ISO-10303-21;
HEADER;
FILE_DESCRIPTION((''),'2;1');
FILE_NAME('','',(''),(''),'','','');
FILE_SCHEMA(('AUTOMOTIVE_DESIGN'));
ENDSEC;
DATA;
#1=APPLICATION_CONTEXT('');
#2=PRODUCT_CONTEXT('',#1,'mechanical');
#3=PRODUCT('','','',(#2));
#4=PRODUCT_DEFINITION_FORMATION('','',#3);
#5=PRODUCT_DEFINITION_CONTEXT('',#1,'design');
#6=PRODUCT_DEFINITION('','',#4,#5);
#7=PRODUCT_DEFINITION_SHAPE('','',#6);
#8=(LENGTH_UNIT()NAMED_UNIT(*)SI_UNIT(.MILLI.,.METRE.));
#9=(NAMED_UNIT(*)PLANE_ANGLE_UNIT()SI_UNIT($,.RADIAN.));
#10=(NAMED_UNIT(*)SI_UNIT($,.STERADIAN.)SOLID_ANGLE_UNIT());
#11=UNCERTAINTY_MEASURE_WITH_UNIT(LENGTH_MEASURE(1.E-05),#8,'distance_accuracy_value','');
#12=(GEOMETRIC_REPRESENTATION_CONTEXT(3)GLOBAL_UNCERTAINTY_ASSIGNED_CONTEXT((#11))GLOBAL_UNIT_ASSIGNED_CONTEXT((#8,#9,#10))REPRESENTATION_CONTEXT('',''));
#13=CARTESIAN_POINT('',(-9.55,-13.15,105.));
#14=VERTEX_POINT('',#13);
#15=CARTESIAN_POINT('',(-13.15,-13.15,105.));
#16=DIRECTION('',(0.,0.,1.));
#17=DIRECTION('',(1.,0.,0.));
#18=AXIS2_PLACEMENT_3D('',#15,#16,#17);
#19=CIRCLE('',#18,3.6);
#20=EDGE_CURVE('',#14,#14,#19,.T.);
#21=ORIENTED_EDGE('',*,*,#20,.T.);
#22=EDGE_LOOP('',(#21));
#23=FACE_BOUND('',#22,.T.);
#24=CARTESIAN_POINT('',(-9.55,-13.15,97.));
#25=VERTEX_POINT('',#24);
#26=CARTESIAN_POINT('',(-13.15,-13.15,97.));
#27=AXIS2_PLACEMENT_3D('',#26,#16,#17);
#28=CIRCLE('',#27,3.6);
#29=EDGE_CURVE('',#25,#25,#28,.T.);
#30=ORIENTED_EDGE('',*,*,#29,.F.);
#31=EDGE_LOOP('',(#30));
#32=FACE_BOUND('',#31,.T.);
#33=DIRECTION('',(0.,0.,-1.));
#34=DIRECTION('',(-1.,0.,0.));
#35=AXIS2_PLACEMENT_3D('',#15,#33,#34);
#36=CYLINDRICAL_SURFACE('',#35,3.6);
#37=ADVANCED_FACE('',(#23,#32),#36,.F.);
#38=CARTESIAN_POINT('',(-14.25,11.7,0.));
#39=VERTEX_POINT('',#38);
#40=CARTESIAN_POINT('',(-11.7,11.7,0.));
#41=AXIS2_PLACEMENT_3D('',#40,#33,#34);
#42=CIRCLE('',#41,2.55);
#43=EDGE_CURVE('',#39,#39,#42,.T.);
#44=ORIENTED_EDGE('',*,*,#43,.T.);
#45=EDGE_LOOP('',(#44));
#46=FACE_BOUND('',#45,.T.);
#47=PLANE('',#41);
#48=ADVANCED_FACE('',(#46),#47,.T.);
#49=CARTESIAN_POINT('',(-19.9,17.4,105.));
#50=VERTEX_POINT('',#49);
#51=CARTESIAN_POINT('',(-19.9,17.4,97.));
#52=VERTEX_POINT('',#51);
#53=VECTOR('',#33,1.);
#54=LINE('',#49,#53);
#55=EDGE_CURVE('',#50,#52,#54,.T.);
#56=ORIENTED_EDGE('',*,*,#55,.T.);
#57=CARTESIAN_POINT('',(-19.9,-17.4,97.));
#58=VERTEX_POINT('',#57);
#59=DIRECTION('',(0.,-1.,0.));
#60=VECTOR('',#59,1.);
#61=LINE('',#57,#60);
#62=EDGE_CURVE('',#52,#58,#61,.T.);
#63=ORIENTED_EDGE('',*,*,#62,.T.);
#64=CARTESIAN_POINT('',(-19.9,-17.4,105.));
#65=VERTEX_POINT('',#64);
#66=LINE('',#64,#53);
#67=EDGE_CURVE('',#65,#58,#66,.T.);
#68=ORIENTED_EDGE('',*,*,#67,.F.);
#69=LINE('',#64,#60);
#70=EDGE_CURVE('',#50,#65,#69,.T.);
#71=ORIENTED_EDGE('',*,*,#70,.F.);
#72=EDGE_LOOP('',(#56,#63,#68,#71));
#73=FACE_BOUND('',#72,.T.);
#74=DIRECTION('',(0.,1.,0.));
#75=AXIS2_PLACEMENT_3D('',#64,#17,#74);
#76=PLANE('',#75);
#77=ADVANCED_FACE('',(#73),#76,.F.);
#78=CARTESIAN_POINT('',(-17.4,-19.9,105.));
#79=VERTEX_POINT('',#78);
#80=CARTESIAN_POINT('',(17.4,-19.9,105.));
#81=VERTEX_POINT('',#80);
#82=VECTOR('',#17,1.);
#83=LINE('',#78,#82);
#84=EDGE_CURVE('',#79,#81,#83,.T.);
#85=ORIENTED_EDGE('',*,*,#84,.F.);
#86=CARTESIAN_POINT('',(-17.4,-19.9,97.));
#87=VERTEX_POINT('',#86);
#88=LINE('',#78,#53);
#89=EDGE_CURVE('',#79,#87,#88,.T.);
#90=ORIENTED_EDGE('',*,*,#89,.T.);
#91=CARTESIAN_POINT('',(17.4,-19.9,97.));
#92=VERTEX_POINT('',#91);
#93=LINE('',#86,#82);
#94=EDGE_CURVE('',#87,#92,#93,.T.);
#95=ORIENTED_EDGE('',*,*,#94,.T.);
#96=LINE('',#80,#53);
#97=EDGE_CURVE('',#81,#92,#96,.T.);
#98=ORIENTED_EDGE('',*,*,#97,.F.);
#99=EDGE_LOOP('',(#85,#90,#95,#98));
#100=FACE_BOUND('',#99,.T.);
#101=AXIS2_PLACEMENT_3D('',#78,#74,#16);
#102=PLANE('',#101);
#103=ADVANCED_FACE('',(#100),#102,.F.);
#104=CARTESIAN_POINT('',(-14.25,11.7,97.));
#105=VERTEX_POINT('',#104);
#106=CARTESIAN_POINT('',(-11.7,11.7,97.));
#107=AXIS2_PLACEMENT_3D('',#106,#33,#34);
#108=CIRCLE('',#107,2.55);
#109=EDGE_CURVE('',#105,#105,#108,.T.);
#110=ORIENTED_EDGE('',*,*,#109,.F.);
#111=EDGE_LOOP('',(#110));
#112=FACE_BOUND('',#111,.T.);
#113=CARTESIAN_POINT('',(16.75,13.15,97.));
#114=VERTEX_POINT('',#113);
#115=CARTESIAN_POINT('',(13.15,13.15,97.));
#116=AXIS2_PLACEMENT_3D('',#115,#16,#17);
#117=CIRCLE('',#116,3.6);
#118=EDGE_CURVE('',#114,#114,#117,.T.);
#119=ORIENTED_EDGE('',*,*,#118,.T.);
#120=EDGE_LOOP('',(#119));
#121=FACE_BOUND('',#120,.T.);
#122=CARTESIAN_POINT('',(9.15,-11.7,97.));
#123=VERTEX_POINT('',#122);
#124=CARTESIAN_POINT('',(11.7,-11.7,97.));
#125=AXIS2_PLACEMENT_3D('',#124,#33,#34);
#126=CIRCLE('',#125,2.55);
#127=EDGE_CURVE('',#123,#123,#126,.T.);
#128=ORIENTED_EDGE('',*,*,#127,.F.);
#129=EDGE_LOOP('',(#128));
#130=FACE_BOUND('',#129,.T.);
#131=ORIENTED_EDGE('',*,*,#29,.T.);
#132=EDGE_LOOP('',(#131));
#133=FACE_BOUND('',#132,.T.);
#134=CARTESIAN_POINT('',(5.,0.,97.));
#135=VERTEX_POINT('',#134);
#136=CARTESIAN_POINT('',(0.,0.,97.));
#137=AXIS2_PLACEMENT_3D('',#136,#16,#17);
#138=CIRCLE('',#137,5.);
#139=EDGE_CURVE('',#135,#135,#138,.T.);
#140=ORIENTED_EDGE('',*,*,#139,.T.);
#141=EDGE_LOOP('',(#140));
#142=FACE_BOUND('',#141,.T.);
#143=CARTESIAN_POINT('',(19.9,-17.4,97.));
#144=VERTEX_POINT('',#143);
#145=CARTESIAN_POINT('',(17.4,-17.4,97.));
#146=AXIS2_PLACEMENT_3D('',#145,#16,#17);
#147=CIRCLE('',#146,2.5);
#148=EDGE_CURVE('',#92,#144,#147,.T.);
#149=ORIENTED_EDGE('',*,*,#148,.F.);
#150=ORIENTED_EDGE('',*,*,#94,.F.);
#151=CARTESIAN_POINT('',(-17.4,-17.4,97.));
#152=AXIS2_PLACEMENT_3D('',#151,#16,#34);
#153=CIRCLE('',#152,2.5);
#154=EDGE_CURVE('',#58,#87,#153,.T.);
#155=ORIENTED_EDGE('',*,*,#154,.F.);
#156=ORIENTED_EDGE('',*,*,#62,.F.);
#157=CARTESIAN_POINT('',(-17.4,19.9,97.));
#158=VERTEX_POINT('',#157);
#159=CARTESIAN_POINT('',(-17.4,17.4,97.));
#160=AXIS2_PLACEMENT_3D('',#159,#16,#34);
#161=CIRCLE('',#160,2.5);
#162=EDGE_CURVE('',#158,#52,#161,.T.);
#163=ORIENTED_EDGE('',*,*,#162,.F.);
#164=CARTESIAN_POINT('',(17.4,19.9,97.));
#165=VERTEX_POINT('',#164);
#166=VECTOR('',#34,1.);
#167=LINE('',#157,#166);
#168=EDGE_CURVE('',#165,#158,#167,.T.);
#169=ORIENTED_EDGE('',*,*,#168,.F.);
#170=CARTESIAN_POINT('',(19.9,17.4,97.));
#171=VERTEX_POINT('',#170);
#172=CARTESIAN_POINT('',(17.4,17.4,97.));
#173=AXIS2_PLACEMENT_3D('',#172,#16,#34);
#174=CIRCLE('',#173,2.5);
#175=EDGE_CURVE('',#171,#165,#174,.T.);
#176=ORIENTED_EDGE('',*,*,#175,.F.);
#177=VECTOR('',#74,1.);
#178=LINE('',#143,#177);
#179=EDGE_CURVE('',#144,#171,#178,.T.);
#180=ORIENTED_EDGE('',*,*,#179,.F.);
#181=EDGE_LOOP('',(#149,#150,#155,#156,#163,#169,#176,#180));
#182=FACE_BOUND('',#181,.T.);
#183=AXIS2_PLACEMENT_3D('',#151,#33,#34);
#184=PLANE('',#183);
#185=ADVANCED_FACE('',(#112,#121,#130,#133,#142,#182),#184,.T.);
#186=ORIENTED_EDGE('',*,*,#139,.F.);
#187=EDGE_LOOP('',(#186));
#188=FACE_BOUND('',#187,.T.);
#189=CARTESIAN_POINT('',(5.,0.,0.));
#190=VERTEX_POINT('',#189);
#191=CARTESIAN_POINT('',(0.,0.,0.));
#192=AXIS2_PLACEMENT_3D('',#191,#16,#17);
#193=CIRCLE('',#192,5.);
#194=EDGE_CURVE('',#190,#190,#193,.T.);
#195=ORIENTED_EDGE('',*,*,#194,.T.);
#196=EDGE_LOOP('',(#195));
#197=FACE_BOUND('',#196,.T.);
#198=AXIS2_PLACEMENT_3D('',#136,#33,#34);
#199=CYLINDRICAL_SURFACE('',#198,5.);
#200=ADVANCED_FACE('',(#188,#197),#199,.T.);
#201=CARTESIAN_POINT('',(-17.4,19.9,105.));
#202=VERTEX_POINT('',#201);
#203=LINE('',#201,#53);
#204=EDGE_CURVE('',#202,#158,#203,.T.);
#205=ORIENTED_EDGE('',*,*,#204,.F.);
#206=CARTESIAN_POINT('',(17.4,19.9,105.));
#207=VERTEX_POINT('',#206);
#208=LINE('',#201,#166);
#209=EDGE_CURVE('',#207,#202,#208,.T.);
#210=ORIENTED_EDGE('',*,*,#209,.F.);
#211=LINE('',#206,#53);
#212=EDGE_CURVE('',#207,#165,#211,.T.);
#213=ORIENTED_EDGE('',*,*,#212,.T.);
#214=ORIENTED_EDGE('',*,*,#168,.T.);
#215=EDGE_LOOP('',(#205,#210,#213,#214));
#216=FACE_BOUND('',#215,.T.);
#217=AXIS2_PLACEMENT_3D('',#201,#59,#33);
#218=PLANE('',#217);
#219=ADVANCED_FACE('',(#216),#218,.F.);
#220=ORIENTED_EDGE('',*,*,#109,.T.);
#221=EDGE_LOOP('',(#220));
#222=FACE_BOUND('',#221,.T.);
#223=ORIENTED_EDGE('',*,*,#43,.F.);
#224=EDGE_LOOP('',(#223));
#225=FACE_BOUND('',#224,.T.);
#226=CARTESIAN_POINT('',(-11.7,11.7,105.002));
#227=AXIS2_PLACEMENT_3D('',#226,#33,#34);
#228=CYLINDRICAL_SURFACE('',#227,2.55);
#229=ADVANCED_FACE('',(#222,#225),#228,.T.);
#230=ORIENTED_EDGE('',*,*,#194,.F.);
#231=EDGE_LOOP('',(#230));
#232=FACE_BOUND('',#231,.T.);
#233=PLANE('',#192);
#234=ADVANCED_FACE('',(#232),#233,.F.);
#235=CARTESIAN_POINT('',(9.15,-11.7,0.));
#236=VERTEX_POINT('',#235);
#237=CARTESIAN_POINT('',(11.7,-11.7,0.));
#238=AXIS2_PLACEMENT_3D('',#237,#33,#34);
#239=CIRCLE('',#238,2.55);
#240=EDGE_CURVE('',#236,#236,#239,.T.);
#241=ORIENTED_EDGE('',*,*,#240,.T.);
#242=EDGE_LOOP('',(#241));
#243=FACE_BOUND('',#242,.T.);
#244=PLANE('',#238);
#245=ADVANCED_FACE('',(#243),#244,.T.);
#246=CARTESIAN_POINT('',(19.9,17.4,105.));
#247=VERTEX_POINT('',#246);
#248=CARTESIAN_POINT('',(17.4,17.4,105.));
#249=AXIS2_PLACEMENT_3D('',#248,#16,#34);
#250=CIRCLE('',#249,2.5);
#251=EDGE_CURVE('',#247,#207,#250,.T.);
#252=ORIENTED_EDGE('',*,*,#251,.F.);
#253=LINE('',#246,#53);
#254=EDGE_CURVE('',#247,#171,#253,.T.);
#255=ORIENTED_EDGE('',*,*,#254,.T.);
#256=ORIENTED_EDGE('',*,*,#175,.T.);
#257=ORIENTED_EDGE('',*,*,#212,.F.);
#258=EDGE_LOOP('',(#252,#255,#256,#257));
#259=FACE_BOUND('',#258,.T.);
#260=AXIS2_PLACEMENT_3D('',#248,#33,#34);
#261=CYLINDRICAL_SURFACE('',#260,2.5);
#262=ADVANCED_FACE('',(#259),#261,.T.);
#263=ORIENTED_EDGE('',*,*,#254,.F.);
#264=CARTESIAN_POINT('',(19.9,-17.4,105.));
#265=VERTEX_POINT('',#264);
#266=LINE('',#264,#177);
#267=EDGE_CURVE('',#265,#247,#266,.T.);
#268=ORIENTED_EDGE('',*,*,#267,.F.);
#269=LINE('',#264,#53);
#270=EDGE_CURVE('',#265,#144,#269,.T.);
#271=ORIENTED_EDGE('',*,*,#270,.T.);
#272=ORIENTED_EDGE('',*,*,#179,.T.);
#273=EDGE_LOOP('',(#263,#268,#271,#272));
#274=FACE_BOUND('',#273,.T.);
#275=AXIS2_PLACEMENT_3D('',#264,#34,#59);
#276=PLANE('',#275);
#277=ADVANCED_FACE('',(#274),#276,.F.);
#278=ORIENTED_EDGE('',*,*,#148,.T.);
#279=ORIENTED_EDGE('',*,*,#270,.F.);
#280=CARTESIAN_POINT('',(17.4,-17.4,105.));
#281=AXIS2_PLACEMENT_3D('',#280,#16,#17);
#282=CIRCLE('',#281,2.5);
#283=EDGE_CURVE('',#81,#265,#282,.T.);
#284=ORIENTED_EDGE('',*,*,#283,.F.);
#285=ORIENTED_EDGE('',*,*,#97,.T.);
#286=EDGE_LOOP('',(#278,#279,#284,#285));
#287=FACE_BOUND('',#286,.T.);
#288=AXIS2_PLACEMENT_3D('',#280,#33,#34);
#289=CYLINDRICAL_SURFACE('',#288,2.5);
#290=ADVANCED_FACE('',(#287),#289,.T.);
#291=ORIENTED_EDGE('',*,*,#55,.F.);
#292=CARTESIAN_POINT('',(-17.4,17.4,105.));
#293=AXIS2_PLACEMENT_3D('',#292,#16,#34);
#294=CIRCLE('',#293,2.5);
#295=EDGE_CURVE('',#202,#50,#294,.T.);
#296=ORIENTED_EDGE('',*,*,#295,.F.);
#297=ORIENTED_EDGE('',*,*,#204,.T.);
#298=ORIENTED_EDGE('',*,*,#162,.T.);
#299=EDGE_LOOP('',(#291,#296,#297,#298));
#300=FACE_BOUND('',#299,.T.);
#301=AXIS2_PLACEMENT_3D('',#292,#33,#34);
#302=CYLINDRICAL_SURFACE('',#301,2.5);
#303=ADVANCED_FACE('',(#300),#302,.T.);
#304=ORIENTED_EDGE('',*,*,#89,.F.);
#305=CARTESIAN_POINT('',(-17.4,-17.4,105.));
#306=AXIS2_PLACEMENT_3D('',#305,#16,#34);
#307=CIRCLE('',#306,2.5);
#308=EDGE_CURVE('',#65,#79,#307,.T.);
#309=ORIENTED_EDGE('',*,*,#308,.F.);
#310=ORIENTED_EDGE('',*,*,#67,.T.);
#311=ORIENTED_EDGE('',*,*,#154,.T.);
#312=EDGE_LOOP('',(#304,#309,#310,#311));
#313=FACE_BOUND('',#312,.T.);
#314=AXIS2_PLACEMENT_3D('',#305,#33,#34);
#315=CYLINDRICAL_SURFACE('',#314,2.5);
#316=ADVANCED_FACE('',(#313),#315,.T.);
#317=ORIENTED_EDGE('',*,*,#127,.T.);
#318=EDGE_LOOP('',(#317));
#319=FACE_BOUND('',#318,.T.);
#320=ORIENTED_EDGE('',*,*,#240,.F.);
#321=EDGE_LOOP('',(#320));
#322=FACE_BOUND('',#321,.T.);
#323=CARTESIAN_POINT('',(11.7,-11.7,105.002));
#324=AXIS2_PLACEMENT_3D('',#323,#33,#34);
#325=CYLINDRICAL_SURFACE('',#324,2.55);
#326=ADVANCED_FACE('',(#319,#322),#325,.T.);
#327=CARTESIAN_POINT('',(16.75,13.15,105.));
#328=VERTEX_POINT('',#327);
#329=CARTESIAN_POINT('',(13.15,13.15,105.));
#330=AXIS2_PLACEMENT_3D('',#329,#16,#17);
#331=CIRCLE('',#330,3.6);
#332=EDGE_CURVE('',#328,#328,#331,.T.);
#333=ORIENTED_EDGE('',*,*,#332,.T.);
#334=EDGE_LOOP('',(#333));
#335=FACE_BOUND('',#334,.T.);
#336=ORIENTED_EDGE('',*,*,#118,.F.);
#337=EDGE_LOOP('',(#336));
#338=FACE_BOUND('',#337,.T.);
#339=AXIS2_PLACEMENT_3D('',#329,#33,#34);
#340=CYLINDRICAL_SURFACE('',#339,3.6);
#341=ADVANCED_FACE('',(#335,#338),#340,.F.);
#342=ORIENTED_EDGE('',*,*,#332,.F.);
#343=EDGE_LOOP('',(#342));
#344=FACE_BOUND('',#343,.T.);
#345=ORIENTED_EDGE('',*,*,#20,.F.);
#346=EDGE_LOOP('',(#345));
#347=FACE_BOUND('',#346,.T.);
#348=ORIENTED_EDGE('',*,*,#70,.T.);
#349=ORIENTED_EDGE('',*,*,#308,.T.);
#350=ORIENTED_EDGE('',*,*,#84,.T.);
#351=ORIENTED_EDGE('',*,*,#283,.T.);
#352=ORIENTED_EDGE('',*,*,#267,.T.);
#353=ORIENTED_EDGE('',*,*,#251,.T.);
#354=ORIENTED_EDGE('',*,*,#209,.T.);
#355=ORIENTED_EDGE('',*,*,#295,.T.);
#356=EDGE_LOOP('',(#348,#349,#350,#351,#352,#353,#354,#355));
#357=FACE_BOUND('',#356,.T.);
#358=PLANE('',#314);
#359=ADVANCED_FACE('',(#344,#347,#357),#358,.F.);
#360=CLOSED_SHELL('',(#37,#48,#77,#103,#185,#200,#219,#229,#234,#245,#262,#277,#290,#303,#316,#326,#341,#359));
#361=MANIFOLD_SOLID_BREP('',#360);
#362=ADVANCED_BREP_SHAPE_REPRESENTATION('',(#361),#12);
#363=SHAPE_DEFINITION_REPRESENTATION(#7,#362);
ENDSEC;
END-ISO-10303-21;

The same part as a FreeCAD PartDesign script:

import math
import FreeCAD as App
import Part
import Sketcher
Q = App.Units.Quantity

doc = App.newDocument("Part")
body = doc.addObject("PartDesign::Body", "Body")

# Sketch on XY plane
sketch1 = doc.addObject("Sketcher::SketchObject", "Sketch")
body.addObject(sketch1)
sketch1.AttachmentSupport = (doc.XY_Plane, [""])
sketch1.MapMode = "FlatFace"
sketch1.addGeometry(Part.Circle(App.Vector(0, 0, 0), App.Vector(0, 0, 1), 5), False)
sketch1.addConstraint(Sketcher.Constraint("Coincident", 0, 3, -1, 1))
sketch1.addConstraint(Sketcher.Constraint("Diameter", 0, Q("10 mm")))
pad1 = doc.addObject("PartDesign::Pad", "Pad")
body.addObject(pad1)
pad1.Profile = sketch1
pad1.Length = 97

# Sketch on XY plane
sketch2 = doc.addObject("Sketcher::SketchObject", "Sketch001")
body.addObject(sketch2)
sketch2.AttachmentSupport = (doc.XY_Plane, [""])
sketch2.MapMode = "FlatFace"
sketch2.AttachmentOffset = App.Placement(App.Vector(0, 0, 97), App.Rotation())
sketch2.addGeometry(Part.LineSegment(App.Vector(-17.4, -19.9, 0), App.Vector(17.4, -19.9, 0)), False)
sketch2.addGeometry(Part.ArcOfCircle(Part.Circle(App.Vector(17.4, -17.4, 0), App.Vector(0, 0, 1), 2.5), math.radians(-90), math.radians(0)), False)
sketch2.addGeometry(Part.LineSegment(App.Vector(19.9, -17.4, 0), App.Vector(19.9, 17.4, 0)), False)
sketch2.addGeometry(Part.ArcOfCircle(Part.Circle(App.Vector(17.4, 17.4, 0), App.Vector(0, 0, 1), 2.5), math.radians(0), math.radians(90)), False)
sketch2.addGeometry(Part.LineSegment(App.Vector(17.4, 19.9, 0), App.Vector(-17.4, 19.9, 0)), False)
sketch2.addGeometry(Part.ArcOfCircle(Part.Circle(App.Vector(-17.4, 17.4, 0), App.Vector(0, 0, 1), 2.5), math.radians(90), math.radians(180)), False)
sketch2.addGeometry(Part.LineSegment(App.Vector(-19.9, 17.4, 0), App.Vector(-19.9, -17.4, 0)), False)
sketch2.addGeometry(Part.ArcOfCircle(Part.Circle(App.Vector(-17.4, -17.4, 0), App.Vector(0, 0, 1), 2.5), math.radians(180), math.radians(270)), False)
sketch2.addGeometry(Part.Circle(App.Vector(-13.15, -13.15, 0), App.Vector(0, 0, 1), 3.6), False)
sketch2.addGeometry(Part.Circle(App.Vector(13.15, 13.15, 0), App.Vector(0, 0, 1), 3.6), False)
sketch2.addConstraint(Sketcher.Constraint("Tangent", 0, 2, 1, 1))
sketch2.addConstraint(Sketcher.Constraint("Tangent", 1, 2, 2, 1))
sketch2.addConstraint(Sketcher.Constraint("Tangent", 2, 2, 3, 1))
sketch2.addConstraint(Sketcher.Constraint("Tangent", 3, 2, 4, 1))
sketch2.addConstraint(Sketcher.Constraint("Tangent", 4, 2, 5, 1))
sketch2.addConstraint(Sketcher.Constraint("Tangent", 5, 2, 6, 1))
sketch2.addConstraint(Sketcher.Constraint("Tangent", 6, 2, 7, 1))
sketch2.addConstraint(Sketcher.Constraint("Tangent", 7, 2, 0, 1))
sketch2.addConstraint(Sketcher.Constraint("Horizontal", 0))
sketch2.addConstraint(Sketcher.Constraint("Vertical", 2))
sketch2.addConstraint(Sketcher.Constraint("Horizontal", 4))
sketch2.addConstraint(Sketcher.Constraint("Vertical", 6))
sketch2.addConstraint(Sketcher.Constraint("Equal", 1, 3))
sketch2.addConstraint(Sketcher.Constraint("Equal", 3, 5))
sketch2.addConstraint(Sketcher.Constraint("Equal", 5, 7))
sketch2.addConstraint(Sketcher.Constraint("Equal", 8, 9))
sketch2.addConstraint(Sketcher.Constraint("Symmetric", 1, 3, 5, 3, -1, 1))
sketch2.addConstraint(Sketcher.Constraint("Symmetric", 8, 3, 9, 3, -1, 1))
sketch2.addConstraint(Sketcher.Constraint("Equal", 4, 2))
sketch2.addConstraint(Sketcher.Constraint("Diameter", 8, Q("7.2 mm")))
sketch2.addConstraint(Sketcher.Constraint("Radius", 1, Q("2.5 mm")))
sketch2.addConstraint(Sketcher.Constraint("DistanceX", 0, 1, 0, 2, Q("34.8 mm")))
sketch2.addConstraint(Sketcher.Constraint("DistanceX", 8, 3, 9, 3, Q("26.3 mm")))
sketch2.addConstraint(Sketcher.Constraint("DistanceY", 8, 3, 9, 3, Q("26.3 mm")))
pad2 = doc.addObject("PartDesign::Pad", "Pad001")
body.addObject(pad2)
pad2.Profile = sketch2
pad2.Length = 8

# Sketch on XY plane
sketch3 = doc.addObject("Sketcher::SketchObject", "Sketch002")
body.addObject(sketch3)
sketch3.AttachmentSupport = (doc.XY_Plane, [""])
sketch3.MapMode = "FlatFace"
sketch3.addGeometry(Part.Circle(App.Vector(11.7, -11.7, 0), App.Vector(0, 0, 1), 2.55), False)
sketch3.addConstraint(Sketcher.Constraint("Diameter", 0, Q("5.1 mm")))
sketch3.addConstraint(Sketcher.Constraint("DistanceX", -1, 1, 0, 3, Q("11.7 mm")))
sketch3.addConstraint(Sketcher.Constraint("DistanceY", 0, 3, -1, 1, Q("11.7 mm")))
pad3 = doc.addObject("PartDesign::Pad", "Pad002")
body.addObject(pad3)
pad3.Profile = sketch3
pad3.Type = "UpToFirst"

# Sketch on XY plane
sketch4 = doc.addObject("Sketcher::SketchObject", "Sketch003")
body.addObject(sketch4)
sketch4.AttachmentSupport = (doc.XY_Plane, [""])
sketch4.MapMode = "FlatFace"
sketch4.addGeometry(Part.Circle(App.Vector(-11.7, 11.7, 0), App.Vector(0, 0, 1), 2.55), False)
sketch4.addConstraint(Sketcher.Constraint("Diameter", 0, Q("5.1 mm")))
sketch4.addConstraint(Sketcher.Constraint("DistanceX", 0, 3, -1, 1, Q("11.7 mm")))
sketch4.addConstraint(Sketcher.Constraint("DistanceY", -1, 1, 0, 3, Q("11.7 mm")))
pad4 = doc.addObject("PartDesign::Pad", "Pad003")
body.addObject(pad4)
pad4.Profile = sketch4
pad4.Type = "UpToFirst"

doc.recompute()
